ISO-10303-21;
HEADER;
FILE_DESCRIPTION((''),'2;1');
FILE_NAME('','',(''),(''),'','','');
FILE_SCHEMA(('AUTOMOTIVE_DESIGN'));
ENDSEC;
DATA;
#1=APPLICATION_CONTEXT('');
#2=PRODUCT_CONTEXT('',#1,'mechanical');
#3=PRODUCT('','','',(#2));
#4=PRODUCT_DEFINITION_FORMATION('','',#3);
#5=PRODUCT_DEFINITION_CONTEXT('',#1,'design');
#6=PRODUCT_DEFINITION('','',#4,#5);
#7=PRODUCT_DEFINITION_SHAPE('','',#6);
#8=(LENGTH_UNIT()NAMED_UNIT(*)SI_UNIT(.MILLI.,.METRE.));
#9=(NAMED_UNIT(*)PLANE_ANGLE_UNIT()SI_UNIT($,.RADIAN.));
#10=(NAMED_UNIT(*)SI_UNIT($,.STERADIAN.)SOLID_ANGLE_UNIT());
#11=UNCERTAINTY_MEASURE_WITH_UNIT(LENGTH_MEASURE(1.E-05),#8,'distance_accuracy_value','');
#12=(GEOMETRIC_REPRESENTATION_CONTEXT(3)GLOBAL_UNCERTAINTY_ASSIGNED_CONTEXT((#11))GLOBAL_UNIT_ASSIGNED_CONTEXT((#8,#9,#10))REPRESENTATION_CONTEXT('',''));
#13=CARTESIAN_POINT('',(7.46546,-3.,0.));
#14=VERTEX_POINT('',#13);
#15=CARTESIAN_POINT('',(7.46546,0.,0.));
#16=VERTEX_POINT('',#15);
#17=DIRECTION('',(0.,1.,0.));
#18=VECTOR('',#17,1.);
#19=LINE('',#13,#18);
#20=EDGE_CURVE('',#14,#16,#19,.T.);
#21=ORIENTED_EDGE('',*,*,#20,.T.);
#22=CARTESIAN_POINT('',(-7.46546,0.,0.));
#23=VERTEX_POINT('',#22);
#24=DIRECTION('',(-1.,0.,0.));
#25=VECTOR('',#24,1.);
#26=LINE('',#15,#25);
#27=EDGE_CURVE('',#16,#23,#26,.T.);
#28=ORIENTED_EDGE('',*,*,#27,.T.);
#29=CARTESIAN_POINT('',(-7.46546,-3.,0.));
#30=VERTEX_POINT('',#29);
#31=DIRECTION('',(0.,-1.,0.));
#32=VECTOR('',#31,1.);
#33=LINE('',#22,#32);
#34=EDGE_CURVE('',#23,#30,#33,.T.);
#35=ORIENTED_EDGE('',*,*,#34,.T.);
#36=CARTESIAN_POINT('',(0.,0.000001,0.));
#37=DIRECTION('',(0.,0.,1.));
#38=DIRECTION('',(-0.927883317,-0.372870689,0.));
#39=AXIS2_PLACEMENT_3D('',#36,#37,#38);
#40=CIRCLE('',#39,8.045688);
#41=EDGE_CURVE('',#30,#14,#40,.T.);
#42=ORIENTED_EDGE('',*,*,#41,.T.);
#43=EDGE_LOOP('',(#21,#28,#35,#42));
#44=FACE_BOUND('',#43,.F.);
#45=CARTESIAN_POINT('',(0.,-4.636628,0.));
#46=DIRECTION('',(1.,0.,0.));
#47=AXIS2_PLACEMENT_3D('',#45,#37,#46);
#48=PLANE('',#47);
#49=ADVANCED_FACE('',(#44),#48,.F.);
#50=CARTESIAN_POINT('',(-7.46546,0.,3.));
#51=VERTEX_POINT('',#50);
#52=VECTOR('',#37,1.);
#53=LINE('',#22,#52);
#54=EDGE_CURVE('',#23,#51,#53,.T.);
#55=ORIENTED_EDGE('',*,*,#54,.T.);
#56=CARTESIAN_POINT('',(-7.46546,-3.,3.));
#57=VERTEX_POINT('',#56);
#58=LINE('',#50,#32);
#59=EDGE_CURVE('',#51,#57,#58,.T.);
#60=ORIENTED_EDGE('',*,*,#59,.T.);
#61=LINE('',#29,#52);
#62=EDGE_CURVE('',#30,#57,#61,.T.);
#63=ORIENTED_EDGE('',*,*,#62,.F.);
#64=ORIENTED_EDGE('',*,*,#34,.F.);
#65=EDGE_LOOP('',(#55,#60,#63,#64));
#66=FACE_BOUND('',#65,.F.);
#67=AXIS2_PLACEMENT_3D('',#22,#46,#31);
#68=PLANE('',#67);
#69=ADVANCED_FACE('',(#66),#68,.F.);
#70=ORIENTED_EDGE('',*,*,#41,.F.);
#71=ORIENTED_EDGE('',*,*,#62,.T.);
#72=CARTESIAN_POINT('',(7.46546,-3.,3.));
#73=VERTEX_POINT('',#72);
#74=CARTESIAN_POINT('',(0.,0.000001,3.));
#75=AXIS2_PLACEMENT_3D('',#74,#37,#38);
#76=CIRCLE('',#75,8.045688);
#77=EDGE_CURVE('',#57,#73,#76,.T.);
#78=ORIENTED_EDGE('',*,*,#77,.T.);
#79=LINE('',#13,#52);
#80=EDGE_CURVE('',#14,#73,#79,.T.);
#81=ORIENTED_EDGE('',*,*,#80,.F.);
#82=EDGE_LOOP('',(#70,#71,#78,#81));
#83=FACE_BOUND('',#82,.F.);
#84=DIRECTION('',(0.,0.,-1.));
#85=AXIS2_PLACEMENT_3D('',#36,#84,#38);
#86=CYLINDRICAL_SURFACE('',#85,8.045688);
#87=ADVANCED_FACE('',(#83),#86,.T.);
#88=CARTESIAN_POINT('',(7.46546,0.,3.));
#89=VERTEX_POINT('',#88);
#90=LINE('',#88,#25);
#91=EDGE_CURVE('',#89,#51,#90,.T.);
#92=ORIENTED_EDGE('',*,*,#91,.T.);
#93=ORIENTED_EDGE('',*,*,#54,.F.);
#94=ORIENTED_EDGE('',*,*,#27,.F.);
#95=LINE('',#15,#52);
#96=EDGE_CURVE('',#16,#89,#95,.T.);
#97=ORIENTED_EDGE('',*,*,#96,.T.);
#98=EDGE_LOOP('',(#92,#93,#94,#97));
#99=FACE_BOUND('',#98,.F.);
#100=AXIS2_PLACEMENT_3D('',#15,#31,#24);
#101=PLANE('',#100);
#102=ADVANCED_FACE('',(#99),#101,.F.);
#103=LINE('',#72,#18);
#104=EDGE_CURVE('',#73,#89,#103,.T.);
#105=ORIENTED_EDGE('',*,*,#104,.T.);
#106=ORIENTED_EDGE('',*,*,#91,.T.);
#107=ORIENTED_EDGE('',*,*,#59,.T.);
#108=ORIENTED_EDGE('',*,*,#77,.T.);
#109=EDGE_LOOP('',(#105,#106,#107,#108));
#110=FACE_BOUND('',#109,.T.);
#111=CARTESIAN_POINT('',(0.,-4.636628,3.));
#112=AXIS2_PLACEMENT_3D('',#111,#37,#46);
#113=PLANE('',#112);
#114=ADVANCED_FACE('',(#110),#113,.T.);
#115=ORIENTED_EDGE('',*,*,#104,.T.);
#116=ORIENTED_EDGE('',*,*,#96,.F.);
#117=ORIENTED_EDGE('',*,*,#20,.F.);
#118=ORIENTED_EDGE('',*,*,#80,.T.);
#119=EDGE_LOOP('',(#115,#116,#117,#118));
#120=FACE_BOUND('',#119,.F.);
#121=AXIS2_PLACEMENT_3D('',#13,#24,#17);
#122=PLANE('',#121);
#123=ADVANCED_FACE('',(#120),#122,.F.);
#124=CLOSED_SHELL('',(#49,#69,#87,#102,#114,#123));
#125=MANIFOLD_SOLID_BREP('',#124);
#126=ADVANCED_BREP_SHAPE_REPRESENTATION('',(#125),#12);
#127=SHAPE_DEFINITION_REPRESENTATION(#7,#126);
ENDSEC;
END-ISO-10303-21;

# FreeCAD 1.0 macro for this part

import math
import FreeCAD as App
import Part
import Sketcher
from FreeCAD import Vector
Q = App.Units.Quantity

doc = App.newDocument("Part")
body = doc.addObject("PartDesign::Body", "Body")

# Sketch on XY plane
sketch1 = doc.addObject("Sketcher::SketchObject", "Sketch")
body.addObject(sketch1)
sketch1.AttachmentSupport = (doc.XY_Plane, [""])
sketch1.MapMode = "FlatFace"
sketch1.addGeometry([
    Part.ArcOfCircle(Part.Circle(Vector(0, 0, 0), Vector(0, 0, 1), 8), math.radians(-158), math.radians(-22)),
    Part.LineSegment(Vector(7.5, -3, 0), Vector(7.5, 0, 0)),
    Part.LineSegment(Vector(7.5, 0, 0), Vector(-7.5, 0, 0)),
    Part.LineSegment(Vector(-7.5, 0, 0), Vector(-7.5, -3, 0)),
], False)
sketch1.addConstraint([
    Sketcher.Constraint("Coincident", 0, 2, 1, 1),
    Sketcher.Constraint("Coincident", 1, 2, 2, 1),
    Sketcher.Constraint("Coincident", 2, 2, 3, 1),
    Sketcher.Constraint("Coincident", 3, 2, 0, 1),
    Sketcher.Constraint("Vertical", 1),
    Sketcher.Constraint("Horizontal", 2),
    Sketcher.Constraint("Vertical", 3),
    Sketcher.Constraint("Coincident", 0, 3, -1, 1),
    Sketcher.Constraint("Symmetric", 1, 2, 2, 2, -1, 1),
    Sketcher.Constraint("DistanceY", 1, 1, 1, 2, Q("3 mm")),
    Sketcher.Constraint("Radius", 0, Q("8.045688 mm")),
])
pad1 = doc.addObject("PartDesign::Pad", "Pad")
body.addObject(pad1)
pad1.Profile = sketch1
pad1.Length = 3

doc.recompute()
